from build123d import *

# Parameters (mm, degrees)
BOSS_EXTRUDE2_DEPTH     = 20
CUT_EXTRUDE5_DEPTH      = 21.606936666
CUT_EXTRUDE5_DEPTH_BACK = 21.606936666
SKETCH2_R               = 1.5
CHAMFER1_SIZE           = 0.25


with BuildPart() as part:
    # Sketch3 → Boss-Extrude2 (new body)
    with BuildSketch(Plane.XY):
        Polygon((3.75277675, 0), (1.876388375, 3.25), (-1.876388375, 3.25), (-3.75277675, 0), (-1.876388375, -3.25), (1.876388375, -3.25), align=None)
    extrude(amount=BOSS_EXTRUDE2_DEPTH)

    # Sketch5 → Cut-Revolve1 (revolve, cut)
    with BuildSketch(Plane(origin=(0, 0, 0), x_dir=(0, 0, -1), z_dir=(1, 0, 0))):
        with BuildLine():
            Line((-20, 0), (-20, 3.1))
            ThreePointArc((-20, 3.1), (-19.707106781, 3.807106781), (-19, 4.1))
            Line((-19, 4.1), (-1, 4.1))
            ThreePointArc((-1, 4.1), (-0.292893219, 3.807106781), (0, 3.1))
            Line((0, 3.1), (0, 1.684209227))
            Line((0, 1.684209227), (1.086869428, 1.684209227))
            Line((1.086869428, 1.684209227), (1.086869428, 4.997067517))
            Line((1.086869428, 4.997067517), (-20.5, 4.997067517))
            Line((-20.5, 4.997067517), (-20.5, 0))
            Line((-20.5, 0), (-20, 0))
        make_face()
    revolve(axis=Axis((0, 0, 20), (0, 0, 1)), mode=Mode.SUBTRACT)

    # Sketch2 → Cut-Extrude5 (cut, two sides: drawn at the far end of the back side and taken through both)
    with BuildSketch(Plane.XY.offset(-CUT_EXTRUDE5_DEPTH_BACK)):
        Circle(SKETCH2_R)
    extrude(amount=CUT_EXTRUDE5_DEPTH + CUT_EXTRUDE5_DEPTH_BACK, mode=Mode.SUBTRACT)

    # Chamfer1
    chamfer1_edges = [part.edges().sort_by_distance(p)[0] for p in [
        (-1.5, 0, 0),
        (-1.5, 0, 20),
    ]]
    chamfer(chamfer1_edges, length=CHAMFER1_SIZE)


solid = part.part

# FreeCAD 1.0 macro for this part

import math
import FreeCAD as App
import Part
import Sketcher
Q = App.Units.Quantity


def edges_at(feature, points):
    """Names of the edges that pass closest to the given points."""
    edges = feature.Shape.Edges
    near = lambda p: min(range(len(edges)), key=lambda i: edges[i].distToShape(Part.Vertex(*p))[0])
    return sorted({f"Edge{near(p) + 1}" for p in points})


def add_polygon(sketch, points):
    """Adds a closed chain of lines whose ends are joined by coincident constraints."""
    first, n = sketch.GeometryCount, len(points)
    for a, b in zip(points, points[1:] + points[:1]):
        sketch.addGeometry(Part.LineSegment(App.Vector(*a, 0), App.Vector(*b, 0)), False)
    for i in range(n):
        sketch.addConstraint(Sketcher.Constraint("Coincident", first + i, 2, first + (i + 1) % n, 1))

doc = App.newDocument("Part")
body = doc.addObject("PartDesign::Body", "Body")

sketch1 = body.newObject("Sketcher::SketchObject", "Sketch")
sketch1.AttachmentSupport = (doc.getObject("XY_Plane"), [""])
sketch1.MapMode = "FlatFace"
add_polygon(sketch1, [(3.8, 0), (1.9, 3.2), (-1.9, 3.2), (-3.8, 0), (-1.9, -3.2), (1.9, -3.2)])
sketch1.addConstraint([
    Sketcher.Constraint("Horizontal", 1),
    Sketcher.Constraint("Horizontal", 4),
    Sketcher.Constraint("Symmetric", 0, 2, 3, 2, -1, 1),
    Sketcher.Constraint("Symmetric", 2, 2, 5, 2, -1, 1),
    Sketcher.Constraint("PointOnObject", 2, 2, -1),
    Sketcher.Constraint("Parallel", 2, 5),
    Sketcher.Constraint("Vertical", 1, 2, 3, 2),
    Sketcher.Constraint("Angle", 0, Q("120 deg")),
    Sketcher.Constraint("DistanceY", 3, 2, 1, 2, Q("6.5 mm")),
    Sketcher.Constraint("DistanceX", 1, 2, 1, 1, Q("3.752777 mm")),
])
pad1 = body.newObject("PartDesign::Pad", "Pad")
pad1.Profile = sketch1
pad1.Length = 20

sketch2 = body.newObject("Sketcher::SketchObject", "Sketch001")
sketch2.AttachmentSupport = (doc.getObject("YZ_Plane"), [""])
sketch2.MapMode = "FlatFace"
sketch2.addGeometry([
    Part.LineSegment(App.Vector(0, 20, 0), App.Vector(3.1, 20, 0)),
    Part.ArcOfCircle(Part.Circle(App.Vector(3.1, 19, 0), App.Vector(0, 0, 1), 1), math.radians(0), math.radians(90)),
    Part.LineSegment(App.Vector(4.1, 19, 0), App.Vector(4.1, 1, 0)),
    Part.ArcOfCircle(Part.Circle(App.Vector(3.1, 1, 0), App.Vector(0, 0, 1), 1), math.radians(-90), math.radians(0)),
    Part.LineSegment(App.Vector(3.1, 0, 0), App.Vector(1.7, 0, 0)),
    Part.LineSegment(App.Vector(1.7, 0, 0), App.Vector(1.7, -1.1, 0)),
    Part.LineSegment(App.Vector(1.7, -1.1, 0), App.Vector(5, -1.1, 0)),
    Part.LineSegment(App.Vector(5, -1.1, 0), App.Vector(5, 20.5, 0)),
    Part.LineSegment(App.Vector(5, 20.5, 0), App.Vector(0, 20.5, 0)),
    Part.LineSegment(App.Vector(0, 20.5, 0), App.Vector(0, 20, 0)),
], False)
sketch2.addConstraint([
    Sketcher.Constraint("Tangent", 0, 2, 1, 2),
    Sketcher.Constraint("Tangent", 1, 1, 2, 1),
    Sketcher.Constraint("Tangent", 2, 2, 3, 2),
    Sketcher.Constraint("Tangent", 3, 1, 4, 1),
    Sketcher.Constraint("Coincident", 4, 2, 5, 1),
    Sketcher.Constraint("Coincident", 5, 2, 6, 1),
    Sketcher.Constraint("Coincident", 6, 2, 7, 1),
    Sketcher.Constraint("Coincident", 7, 2, 8, 1),
    Sketcher.Constraint("Coincident", 8, 2, 9, 1),
    Sketcher.Constraint("Coincident", 9, 2, 0, 1),
    Sketcher.Constraint("Horizontal", 0),
    Sketcher.Constraint("Vertical", 2),
    Sketcher.Constraint("Horizontal", 4),
    Sketcher.Constraint("Vertical", 5),
    Sketcher.Constraint("Horizontal", 6),
    Sketcher.Constraint("Vertical", 7),
    Sketcher.Constraint("Horizontal", 8),
    Sketcher.Constraint("Vertical", 9),
    Sketcher.Constraint("Equal", 1, 3),
    Sketcher.Constraint("PointOnObject", 3, 1, -1),
    Sketcher.Constraint("PointOnObject", 8, 2, -2),
    Sketcher.Constraint("Radius", 1, Q("1 mm")),
    Sketcher.Constraint("DistanceY", 2, 2, 2, 1, Q("18 mm")),
    Sketcher.Constraint("DistanceX", 0, 1, 0, 2, Q("3.1 mm")),
    Sketcher.Constraint("DistanceY", 9, 2, 9, 1, Q("0.5 mm")),
    Sketcher.Constraint("DistanceX", 4, 2, 4, 1, Q("1.415791 mm")),
    Sketcher.Constraint("DistanceX", 6, 1, 6, 2, Q("3.312858 mm")),
    Sketcher.Constraint("DistanceY", 5, 2, 5, 1, Q("1.086869 mm")),
])
groove = body.newObject("PartDesign::Groove", "Groove")
groove.Profile = sketch2
groove.ReferenceAxis = (sketch2, ["V_Axis"])
groove.Angle = 360

sketch3 = body.newObject("Sketcher::SketchObject", "Sketch002")
sketch3.AttachmentSupport = (doc.getObject("XY_Plane"), [""])
sketch3.MapMode = "FlatFace"
sketch3.addGeometry(Part.Circle(App.Vector(0, 0, 0), App.Vector(0, 0, 1), 1.5), False)
sketch3.addConstraint([
    Sketcher.Constraint("Coincident", 0, 3, -1, 1),
    Sketcher.Constraint("Diameter", 0, Q("3 mm")),
])
pocket1 = body.newObject("PartDesign::Pocket", "Pocket")
pocket1.Profile = sketch3
pocket1.Type = "ThroughAll"
pocket1.Midplane = True
doc.recompute()

chamfer = body.newObject("PartDesign::Chamfer", "Chamfer")
chamfer.Base = (pocket1, edges_at(pocket1, [(-1.5, 0, 0), (-1.5, 0, 20)]))
chamfer.Size = 0.25

doc.recompute()
